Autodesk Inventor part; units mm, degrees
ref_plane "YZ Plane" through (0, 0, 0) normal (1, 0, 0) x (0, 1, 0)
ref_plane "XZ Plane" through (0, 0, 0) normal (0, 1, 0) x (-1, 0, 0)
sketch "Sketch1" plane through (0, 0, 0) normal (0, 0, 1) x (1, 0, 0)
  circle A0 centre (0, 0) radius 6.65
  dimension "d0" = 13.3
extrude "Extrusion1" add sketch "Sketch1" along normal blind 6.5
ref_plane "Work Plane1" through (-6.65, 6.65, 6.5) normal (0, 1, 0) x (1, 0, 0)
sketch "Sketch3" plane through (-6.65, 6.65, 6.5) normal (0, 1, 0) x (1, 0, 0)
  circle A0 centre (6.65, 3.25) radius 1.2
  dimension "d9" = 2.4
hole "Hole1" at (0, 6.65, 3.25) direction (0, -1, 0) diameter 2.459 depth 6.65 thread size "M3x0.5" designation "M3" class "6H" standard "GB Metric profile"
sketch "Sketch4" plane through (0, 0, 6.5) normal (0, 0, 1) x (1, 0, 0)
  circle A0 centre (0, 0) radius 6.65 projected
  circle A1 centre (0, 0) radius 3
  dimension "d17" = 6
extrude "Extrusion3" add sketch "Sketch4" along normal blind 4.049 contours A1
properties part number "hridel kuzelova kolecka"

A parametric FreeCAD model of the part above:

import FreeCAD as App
import Part
import Sketcher

V = App.Vector
Q = App.Units.Quantity

doc = App.newDocument("Part")
body = doc.addObject("PartDesign::Body", "Body")

sketch1 = doc.addObject("Sketcher::SketchObject", "Sketch")
body.addObject(sketch1)
sketch1.AttachmentSupport = (doc.XY_Plane, [""])
sketch1.MapMode = "FlatFace"
sketch1.addGeometry(Part.Circle(V(0, 0, 0), V(0, 0, 1), 7), False)
sketch1.addConstraint([
    Sketcher.Constraint("Coincident", 0, 3, -1, 1),
    Sketcher.Constraint("Diameter", 0, Q("13.3 mm")),
])
pad1 = doc.addObject("PartDesign::Pad", "Pad")
body.addObject(pad1)
pad1.Profile = sketch1
pad1.Length = 6.5

sketch2 = doc.addObject("Sketcher::SketchObject", "Sketch001")
body.addObject(sketch2)
sketch2.AttachmentSupport = (doc.XZ_Plane, [""])
sketch2.MapMode = "FlatFace"
sketch2.AttachmentOffset = App.Placement(V(0, 0, -6.65), App.Rotation())
sketch2.addGeometry(Part.Circle(V(0, 3.2, 0), V(0, 0, 1), 1.2), False)
sketch2.addConstraint([
    Sketcher.Constraint("PointOnObject", 0, 3, -2),
    Sketcher.Constraint("Diameter", 0, Q("2.459 mm")),
    Sketcher.Constraint("DistanceY", -1, 1, 0, 3, Q("3.25 mm")),
])
doc.recompute()
hole = doc.addObject("PartDesign::Hole", "Hole")
body.addObject(hole)
hole.Profile = sketch2
hole.ThreadType = "None"
hole.Diameter = 2.459
hole.DepthType = "Dimension"
hole.Depth = 6.65
hole.DrillPoint = "Flat"
hole.Reversed = True

sketch3 = doc.addObject("Sketcher::SketchObject", "Sketch002")
body.addObject(sketch3)
sketch3.AttachmentSupport = (doc.XY_Plane, [""])
sketch3.MapMode = "FlatFace"
sketch3.AttachmentOffset = App.Placement(V(0, 0, 6.5), App.Rotation())
sketch3.addGeometry(Part.Circle(V(0, 0, 0), V(0, 0, 1), 3), False)
sketch3.addConstraint([
    Sketcher.Constraint("Coincident", 0, 3, -1, 1),
    Sketcher.Constraint("Diameter", 0, Q("6 mm")),
])
pad2 = doc.addObject("PartDesign::Pad", "Pad001")
body.addObject(pad2)
pad2.Profile = sketch3
pad2.Length = 4.049

doc.recompute()
